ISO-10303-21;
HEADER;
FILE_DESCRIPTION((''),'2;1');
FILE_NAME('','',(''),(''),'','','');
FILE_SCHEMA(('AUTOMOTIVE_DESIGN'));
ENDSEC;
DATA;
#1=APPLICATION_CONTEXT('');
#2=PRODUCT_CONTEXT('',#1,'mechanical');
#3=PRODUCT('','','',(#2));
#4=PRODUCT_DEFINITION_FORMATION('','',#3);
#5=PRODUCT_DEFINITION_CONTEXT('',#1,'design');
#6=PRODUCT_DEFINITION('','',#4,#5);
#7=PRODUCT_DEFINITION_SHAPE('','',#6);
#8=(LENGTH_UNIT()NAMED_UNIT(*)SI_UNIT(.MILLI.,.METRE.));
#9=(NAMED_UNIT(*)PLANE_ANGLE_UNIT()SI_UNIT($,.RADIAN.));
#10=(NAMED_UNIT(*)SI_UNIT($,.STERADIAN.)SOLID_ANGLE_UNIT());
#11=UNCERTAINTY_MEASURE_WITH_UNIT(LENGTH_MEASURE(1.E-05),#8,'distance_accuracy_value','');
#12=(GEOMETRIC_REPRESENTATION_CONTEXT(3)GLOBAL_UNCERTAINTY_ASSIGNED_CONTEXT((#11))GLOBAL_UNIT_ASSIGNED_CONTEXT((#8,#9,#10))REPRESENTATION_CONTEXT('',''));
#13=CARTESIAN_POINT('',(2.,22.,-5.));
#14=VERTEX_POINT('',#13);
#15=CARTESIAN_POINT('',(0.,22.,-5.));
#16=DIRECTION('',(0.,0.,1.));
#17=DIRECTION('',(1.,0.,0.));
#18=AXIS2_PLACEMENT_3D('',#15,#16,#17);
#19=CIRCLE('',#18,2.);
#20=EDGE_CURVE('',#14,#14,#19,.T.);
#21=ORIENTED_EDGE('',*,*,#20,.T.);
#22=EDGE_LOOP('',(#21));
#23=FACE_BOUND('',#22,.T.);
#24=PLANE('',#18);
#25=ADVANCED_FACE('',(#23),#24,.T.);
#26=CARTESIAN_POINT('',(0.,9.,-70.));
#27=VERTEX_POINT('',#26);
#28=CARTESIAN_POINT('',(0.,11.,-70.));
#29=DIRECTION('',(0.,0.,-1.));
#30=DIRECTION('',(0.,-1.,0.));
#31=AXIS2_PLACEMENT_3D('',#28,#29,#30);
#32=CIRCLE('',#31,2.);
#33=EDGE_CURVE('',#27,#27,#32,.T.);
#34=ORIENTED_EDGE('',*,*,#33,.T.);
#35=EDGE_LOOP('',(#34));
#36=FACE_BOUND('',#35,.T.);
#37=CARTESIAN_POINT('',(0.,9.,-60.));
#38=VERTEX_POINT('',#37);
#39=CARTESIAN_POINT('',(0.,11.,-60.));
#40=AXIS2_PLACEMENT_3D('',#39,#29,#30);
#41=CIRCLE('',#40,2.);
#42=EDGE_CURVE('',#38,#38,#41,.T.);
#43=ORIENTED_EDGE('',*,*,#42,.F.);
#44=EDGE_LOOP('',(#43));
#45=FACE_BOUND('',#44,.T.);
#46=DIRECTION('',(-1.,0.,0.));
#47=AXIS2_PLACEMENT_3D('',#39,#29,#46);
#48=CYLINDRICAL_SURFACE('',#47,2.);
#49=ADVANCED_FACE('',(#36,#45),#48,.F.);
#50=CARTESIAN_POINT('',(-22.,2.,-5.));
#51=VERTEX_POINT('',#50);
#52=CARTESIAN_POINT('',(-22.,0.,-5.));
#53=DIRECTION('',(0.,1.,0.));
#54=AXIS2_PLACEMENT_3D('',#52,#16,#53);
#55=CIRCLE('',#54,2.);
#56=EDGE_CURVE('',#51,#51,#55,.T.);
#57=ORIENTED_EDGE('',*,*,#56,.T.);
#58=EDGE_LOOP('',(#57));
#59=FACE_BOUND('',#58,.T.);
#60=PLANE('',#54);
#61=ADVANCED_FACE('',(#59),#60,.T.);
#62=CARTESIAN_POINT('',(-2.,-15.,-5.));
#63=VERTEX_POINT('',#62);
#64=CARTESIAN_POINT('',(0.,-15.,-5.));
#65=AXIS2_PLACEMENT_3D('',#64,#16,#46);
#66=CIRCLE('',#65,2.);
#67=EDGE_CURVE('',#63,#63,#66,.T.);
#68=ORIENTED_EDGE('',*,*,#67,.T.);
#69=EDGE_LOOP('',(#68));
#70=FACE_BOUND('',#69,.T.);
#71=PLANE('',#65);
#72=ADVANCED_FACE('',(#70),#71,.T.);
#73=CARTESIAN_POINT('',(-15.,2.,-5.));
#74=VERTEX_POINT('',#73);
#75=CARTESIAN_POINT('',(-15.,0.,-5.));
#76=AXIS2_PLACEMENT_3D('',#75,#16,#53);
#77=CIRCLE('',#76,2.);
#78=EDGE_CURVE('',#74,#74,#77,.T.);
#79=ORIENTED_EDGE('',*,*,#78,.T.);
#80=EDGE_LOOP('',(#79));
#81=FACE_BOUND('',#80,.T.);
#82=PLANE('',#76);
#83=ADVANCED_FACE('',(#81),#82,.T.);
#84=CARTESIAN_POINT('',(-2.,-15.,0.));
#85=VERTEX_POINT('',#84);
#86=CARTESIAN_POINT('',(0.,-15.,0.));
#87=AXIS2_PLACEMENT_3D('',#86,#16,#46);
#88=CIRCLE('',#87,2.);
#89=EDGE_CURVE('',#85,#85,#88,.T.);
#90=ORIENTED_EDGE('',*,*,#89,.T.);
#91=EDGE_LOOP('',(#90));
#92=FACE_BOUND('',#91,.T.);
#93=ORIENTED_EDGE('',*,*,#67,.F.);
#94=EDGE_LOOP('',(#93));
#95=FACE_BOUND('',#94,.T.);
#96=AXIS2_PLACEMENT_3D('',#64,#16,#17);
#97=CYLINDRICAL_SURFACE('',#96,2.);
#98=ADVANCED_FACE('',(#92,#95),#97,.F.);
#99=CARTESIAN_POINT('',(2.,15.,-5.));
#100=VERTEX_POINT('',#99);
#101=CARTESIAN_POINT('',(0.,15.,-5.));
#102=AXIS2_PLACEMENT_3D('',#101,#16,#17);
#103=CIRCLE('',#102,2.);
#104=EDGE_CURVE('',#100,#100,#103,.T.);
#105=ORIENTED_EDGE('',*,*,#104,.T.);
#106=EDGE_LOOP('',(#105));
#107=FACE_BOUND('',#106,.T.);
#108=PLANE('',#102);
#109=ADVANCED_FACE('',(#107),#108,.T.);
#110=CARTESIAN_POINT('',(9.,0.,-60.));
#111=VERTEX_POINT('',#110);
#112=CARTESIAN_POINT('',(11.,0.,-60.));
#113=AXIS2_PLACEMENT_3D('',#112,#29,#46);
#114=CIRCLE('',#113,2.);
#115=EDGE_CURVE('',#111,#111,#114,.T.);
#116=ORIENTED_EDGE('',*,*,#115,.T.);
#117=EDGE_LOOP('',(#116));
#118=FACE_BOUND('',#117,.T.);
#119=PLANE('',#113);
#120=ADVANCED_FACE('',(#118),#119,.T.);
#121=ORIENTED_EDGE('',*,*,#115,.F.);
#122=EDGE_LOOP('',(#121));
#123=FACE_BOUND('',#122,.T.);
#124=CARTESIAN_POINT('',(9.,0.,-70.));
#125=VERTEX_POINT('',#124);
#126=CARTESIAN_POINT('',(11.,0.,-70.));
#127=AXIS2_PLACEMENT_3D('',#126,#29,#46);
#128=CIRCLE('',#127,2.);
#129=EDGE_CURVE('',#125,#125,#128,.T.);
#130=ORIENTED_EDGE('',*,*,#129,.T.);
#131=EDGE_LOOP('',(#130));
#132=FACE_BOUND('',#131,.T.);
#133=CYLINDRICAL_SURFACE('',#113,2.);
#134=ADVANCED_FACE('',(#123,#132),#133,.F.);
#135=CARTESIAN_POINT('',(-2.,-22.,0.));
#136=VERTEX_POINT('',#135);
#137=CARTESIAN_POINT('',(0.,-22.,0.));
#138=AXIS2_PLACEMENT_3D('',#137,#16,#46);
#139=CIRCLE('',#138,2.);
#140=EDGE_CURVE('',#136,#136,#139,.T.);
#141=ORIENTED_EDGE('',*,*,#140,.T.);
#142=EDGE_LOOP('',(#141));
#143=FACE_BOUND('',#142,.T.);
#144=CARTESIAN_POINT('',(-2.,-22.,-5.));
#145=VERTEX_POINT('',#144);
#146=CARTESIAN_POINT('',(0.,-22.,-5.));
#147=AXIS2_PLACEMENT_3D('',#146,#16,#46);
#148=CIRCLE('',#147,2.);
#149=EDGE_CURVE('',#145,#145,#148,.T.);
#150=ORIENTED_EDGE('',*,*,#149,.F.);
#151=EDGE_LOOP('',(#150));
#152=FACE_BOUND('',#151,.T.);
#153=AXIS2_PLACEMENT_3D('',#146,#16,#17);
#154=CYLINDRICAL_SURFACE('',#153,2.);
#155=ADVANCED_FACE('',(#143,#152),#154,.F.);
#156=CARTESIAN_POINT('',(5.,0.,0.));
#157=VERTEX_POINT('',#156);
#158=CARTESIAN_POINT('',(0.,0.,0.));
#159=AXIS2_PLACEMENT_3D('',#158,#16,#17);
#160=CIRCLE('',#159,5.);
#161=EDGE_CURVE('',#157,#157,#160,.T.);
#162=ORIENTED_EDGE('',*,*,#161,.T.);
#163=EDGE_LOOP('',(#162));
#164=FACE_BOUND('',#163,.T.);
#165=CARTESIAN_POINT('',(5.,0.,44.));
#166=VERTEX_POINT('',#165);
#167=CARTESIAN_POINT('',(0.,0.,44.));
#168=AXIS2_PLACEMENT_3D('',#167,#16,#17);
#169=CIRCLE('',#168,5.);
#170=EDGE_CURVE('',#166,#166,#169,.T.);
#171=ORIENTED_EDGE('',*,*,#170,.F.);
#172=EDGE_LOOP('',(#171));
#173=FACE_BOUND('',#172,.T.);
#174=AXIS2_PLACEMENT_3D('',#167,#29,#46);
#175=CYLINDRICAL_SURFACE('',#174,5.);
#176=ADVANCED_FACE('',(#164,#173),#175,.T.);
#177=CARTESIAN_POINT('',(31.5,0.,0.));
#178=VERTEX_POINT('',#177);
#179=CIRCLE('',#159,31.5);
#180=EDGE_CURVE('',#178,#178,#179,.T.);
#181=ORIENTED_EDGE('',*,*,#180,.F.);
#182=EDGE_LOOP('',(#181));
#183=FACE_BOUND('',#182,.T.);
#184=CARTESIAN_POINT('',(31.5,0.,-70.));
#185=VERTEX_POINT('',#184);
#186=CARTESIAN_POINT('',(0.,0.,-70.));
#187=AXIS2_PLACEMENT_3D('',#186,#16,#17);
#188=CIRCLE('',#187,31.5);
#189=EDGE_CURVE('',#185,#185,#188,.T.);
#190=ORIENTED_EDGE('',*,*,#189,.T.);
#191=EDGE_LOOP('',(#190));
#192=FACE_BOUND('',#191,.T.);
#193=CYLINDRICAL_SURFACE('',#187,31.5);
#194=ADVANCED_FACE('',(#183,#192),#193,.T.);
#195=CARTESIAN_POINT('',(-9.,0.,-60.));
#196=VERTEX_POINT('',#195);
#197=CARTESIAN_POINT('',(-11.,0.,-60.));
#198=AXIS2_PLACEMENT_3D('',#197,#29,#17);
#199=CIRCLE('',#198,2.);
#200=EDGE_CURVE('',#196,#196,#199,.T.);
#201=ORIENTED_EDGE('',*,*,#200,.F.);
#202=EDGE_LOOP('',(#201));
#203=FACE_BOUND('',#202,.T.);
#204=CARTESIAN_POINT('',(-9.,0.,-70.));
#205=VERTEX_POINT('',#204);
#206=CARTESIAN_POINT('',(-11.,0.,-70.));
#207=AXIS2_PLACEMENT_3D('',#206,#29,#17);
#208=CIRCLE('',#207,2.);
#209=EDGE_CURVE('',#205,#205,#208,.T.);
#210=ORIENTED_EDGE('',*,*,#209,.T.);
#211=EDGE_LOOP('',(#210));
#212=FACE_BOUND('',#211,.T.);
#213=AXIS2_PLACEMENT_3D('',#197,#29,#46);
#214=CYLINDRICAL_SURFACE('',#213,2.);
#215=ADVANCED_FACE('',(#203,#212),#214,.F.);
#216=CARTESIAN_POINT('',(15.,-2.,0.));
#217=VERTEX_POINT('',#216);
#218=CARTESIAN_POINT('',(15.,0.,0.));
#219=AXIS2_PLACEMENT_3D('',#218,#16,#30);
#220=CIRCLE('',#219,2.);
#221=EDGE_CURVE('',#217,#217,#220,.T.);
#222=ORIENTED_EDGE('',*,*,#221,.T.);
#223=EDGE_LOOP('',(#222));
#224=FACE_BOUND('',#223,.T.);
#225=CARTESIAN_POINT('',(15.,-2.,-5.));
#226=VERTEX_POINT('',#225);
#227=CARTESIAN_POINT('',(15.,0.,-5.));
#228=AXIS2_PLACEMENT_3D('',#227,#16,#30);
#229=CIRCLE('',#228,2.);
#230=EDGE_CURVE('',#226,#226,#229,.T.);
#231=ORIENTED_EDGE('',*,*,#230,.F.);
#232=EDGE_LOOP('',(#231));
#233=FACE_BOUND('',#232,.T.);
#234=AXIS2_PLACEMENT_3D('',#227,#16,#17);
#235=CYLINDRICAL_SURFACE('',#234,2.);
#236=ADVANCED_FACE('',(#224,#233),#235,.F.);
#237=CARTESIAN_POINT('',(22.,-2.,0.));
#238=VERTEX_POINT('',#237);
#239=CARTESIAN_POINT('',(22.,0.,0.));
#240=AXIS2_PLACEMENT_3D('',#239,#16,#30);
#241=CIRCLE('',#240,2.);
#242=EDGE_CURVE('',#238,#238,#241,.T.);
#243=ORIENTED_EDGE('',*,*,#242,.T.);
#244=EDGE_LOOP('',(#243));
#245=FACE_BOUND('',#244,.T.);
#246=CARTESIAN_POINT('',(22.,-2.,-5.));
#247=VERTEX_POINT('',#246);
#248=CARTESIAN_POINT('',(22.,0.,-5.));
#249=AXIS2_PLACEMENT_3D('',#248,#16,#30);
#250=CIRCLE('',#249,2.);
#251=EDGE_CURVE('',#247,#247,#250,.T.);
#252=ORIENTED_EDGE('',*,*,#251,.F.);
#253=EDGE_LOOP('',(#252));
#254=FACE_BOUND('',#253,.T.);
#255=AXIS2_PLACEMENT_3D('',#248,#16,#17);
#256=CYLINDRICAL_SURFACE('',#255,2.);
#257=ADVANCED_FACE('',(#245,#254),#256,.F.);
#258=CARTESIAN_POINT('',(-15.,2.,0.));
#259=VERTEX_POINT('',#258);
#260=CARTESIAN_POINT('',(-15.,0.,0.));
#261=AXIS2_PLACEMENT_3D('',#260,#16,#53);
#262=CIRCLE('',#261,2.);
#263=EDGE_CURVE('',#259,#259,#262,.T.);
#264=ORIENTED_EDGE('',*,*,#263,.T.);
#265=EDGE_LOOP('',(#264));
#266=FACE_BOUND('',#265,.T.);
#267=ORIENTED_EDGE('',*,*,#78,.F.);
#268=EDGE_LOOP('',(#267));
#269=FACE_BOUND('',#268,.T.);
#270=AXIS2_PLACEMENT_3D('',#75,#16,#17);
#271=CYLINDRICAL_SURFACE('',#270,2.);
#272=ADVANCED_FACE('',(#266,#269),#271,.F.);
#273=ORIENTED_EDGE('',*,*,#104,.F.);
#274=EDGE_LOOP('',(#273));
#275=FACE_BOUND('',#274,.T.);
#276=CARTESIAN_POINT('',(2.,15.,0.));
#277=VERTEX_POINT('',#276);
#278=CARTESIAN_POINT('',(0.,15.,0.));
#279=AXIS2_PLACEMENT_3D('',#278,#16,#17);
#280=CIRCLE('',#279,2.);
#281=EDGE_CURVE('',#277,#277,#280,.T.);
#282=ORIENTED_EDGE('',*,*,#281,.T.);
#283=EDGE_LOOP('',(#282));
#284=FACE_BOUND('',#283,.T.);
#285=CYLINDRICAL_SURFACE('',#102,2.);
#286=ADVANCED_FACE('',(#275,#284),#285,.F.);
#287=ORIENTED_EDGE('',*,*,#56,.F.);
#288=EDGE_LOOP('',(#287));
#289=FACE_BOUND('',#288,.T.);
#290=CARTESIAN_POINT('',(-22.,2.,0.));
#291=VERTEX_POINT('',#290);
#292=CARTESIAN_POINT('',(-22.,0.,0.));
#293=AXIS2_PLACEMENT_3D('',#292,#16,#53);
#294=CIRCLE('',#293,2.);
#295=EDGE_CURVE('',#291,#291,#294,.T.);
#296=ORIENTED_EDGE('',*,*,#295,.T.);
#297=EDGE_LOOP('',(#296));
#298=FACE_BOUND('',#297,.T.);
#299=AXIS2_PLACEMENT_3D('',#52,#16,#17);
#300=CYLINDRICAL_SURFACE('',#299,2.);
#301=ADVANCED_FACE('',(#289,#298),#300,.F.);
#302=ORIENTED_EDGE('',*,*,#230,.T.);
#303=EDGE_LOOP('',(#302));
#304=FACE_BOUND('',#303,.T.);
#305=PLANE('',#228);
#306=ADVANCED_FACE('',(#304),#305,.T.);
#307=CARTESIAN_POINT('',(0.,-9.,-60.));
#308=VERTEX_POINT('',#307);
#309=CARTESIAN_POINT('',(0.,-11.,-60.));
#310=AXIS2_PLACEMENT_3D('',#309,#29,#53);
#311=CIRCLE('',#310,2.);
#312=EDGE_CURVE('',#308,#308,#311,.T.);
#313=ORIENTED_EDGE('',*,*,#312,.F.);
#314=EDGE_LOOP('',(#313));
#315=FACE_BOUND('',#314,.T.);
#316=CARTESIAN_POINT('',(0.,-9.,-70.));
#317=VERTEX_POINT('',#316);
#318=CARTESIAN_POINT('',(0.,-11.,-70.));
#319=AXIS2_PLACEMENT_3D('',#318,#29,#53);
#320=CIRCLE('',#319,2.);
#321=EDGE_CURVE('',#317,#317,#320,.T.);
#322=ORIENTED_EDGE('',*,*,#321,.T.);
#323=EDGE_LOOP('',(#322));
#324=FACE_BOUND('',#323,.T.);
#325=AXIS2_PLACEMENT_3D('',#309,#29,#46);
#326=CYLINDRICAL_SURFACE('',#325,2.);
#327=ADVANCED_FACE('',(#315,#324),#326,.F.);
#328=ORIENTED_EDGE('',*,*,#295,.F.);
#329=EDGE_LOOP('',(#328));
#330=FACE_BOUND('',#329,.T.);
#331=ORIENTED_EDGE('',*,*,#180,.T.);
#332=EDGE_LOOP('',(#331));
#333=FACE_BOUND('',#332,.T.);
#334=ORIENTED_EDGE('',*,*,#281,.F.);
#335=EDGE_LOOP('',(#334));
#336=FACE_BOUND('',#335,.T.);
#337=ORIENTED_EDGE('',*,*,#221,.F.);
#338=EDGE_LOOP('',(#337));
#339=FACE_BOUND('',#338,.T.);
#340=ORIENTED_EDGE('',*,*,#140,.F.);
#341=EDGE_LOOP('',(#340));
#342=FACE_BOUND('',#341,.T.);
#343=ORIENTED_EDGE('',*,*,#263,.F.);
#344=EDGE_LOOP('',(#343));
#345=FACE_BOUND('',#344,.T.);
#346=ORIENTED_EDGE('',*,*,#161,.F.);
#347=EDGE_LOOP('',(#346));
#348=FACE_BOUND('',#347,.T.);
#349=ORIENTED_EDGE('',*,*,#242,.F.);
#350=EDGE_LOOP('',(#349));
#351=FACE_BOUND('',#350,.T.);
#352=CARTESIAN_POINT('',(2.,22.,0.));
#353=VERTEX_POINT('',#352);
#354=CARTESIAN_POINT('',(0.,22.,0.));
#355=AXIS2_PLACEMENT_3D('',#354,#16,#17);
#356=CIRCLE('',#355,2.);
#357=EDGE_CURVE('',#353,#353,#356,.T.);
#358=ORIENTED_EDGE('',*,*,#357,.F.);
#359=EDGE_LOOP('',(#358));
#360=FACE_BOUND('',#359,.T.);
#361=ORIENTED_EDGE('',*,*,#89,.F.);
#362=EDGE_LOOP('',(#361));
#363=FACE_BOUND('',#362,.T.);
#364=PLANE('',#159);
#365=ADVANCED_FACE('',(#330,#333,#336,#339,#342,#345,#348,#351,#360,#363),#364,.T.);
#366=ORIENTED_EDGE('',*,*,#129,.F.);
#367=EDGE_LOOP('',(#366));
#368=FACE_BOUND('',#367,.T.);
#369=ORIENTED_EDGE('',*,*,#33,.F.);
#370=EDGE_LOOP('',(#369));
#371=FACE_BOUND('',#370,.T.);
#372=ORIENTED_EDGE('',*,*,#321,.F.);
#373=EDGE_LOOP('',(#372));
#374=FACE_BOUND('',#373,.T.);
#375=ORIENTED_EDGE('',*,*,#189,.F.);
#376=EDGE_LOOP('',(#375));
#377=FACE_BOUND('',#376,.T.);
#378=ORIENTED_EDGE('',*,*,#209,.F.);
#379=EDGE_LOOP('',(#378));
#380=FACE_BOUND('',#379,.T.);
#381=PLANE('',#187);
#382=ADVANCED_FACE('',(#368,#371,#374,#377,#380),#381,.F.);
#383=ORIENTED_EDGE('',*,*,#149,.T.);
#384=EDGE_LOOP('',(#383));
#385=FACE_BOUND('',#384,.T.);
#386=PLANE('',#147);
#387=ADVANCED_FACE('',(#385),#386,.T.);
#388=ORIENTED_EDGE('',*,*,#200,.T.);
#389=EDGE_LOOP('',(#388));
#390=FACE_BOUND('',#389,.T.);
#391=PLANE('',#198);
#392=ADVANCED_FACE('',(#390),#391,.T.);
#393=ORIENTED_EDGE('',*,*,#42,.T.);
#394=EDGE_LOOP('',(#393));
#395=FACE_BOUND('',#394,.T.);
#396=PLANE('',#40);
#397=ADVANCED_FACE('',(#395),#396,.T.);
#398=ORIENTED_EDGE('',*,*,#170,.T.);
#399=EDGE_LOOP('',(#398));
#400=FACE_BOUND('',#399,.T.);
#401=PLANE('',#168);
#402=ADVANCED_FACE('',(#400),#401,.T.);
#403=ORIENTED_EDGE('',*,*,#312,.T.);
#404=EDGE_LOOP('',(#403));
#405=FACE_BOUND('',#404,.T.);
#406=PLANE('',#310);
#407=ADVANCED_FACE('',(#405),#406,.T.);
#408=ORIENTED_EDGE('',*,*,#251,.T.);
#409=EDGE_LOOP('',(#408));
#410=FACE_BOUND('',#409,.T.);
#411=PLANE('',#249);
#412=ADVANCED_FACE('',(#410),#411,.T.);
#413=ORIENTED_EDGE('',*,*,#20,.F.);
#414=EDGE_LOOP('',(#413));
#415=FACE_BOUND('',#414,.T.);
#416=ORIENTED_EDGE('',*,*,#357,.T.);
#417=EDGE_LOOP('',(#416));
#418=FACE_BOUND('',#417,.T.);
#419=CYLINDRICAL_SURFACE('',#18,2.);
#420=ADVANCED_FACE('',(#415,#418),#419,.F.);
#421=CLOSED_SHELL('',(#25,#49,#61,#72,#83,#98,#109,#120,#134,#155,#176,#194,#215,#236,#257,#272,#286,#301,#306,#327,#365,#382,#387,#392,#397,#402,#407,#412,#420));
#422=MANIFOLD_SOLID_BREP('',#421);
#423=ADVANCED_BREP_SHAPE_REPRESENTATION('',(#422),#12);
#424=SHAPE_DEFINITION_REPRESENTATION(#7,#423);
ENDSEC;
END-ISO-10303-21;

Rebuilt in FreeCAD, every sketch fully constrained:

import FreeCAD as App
import Part
import Sketcher

V = App.Vector
Q = App.Units.Quantity

doc = App.newDocument("Part")
body = doc.addObject("PartDesign::Body", "Body")

# Sketch on XY plane
sketch1 = body.newObject("Sketcher::SketchObject", "Sketch")
sketch1.AttachmentSupport = (doc.getObject("XY_Plane"), [""])
sketch1.MapMode = "FlatFace"
sketch1.addGeometry(Part.Circle(V(0, 0, 0), V(0, 0, 1), 32), False)
sketch1.addConstraint(Sketcher.Constraint("Coincident", 0, 3, -1, 1))
sketch1.addConstraint(Sketcher.Constraint("Diameter", 0, Q("63 mm")))
pad1 = body.newObject("PartDesign::Pad", "Pad")
pad1.Profile = sketch1
pad1.Length = 70
pad1.Reversed = True

# Sketch on XY plane
sketch2 = body.newObject("Sketcher::SketchObject", "Sketch001")
sketch2.AttachmentSupport = (doc.getObject("XY_Plane"), [""])
sketch2.MapMode = "FlatFace"
sketch2.addGeometry(Part.Circle(V(0, 0, 0), V(0, 0, 1), 5), False)
sketch2.addConstraint(Sketcher.Constraint("Coincident", 0, 3, -1, 1))
sketch2.addConstraint(Sketcher.Constraint("Diameter", 0, Q("10 mm")))
pad2 = body.newObject("PartDesign::Pad", "Pad001")
pad2.Profile = sketch2
pad2.Length = 44

# Sketch on XY plane
sketch3 = body.newObject("Sketcher::SketchObject", "Sketch002")
sketch3.AttachmentSupport = (doc.getObject("XY_Plane"), [""])
sketch3.MapMode = "FlatFace"
sketch3.AttachmentOffset = App.Placement(V(0, 0, -70), App.Rotation())
sketch3.addGeometry(Part.Circle(V(11, 0, 0), V(0, 0, 1), 2), False)
sketch3.addConstraint(Sketcher.Constraint("PointOnObject", 0, 3, -1))
sketch3.addConstraint(Sketcher.Constraint("Diameter", 0, Q("4 mm")))
sketch3.addConstraint(Sketcher.Constraint("DistanceX", -1, 1, 0, 3, Q("11 mm")))
pocket1 = body.newObject("PartDesign::Pocket", "Pocket")
pocket1.Profile = sketch3
pocket1.Length = 10
pocket1.Reversed = True

# Sketch on XY plane
sketch4 = body.newObject("Sketcher::SketchObject", "Sketch003")
sketch4.AttachmentSupport = (doc.getObject("XY_Plane"), [""])
sketch4.MapMode = "FlatFace"
sketch4.addGeometry(Part.Circle(V(0, 15, 0), V(0, 0, 1), 2), False)
sketch4.addGeometry(Part.Circle(V(0, 22, 0), V(0, 0, 1), 2), False)
sketch4.addConstraint(Sketcher.Constraint("Equal", 0, 1))
sketch4.addConstraint(Sketcher.Constraint("PointOnObject", 0, 3, -2))
sketch4.addConstraint(Sketcher.Constraint("PointOnObject", 1, 3, -2))
sketch4.addConstraint(Sketcher.Constraint("Diameter", 0, Q("4 mm")))
sketch4.addConstraint(Sketcher.Constraint("DistanceY", -1, 1, 0, 3, Q("15 mm")))
sketch4.addConstraint(Sketcher.Constraint("DistanceY", -1, 1, 1, 3, Q("22 mm")))
pocket2 = body.newObject("PartDesign::Pocket", "Pocket001")
pocket2.Profile = sketch4
pocket2.Length = 5
doc.recompute()

polarpattern = body.newObject("PartDesign::PolarPattern", "PolarPattern")
polarpattern.Originals = [pocket2]
polarpattern.Axis = (doc.getObject("Z_Axis"), [""])
polarpattern.Angle = 360
polarpattern.Occurrences = 4
body.Tip = polarpattern
doc.recompute()

polarpattern2 = body.newObject("PartDesign::PolarPattern", "PolarPattern001")
polarpattern2.Originals = [pocket1]
polarpattern2.Axis = (doc.getObject("Z_Axis"), [""])
polarpattern2.Angle = 360
polarpattern2.Occurrences = 4
body.Tip = polarpattern2

doc.recompute()
